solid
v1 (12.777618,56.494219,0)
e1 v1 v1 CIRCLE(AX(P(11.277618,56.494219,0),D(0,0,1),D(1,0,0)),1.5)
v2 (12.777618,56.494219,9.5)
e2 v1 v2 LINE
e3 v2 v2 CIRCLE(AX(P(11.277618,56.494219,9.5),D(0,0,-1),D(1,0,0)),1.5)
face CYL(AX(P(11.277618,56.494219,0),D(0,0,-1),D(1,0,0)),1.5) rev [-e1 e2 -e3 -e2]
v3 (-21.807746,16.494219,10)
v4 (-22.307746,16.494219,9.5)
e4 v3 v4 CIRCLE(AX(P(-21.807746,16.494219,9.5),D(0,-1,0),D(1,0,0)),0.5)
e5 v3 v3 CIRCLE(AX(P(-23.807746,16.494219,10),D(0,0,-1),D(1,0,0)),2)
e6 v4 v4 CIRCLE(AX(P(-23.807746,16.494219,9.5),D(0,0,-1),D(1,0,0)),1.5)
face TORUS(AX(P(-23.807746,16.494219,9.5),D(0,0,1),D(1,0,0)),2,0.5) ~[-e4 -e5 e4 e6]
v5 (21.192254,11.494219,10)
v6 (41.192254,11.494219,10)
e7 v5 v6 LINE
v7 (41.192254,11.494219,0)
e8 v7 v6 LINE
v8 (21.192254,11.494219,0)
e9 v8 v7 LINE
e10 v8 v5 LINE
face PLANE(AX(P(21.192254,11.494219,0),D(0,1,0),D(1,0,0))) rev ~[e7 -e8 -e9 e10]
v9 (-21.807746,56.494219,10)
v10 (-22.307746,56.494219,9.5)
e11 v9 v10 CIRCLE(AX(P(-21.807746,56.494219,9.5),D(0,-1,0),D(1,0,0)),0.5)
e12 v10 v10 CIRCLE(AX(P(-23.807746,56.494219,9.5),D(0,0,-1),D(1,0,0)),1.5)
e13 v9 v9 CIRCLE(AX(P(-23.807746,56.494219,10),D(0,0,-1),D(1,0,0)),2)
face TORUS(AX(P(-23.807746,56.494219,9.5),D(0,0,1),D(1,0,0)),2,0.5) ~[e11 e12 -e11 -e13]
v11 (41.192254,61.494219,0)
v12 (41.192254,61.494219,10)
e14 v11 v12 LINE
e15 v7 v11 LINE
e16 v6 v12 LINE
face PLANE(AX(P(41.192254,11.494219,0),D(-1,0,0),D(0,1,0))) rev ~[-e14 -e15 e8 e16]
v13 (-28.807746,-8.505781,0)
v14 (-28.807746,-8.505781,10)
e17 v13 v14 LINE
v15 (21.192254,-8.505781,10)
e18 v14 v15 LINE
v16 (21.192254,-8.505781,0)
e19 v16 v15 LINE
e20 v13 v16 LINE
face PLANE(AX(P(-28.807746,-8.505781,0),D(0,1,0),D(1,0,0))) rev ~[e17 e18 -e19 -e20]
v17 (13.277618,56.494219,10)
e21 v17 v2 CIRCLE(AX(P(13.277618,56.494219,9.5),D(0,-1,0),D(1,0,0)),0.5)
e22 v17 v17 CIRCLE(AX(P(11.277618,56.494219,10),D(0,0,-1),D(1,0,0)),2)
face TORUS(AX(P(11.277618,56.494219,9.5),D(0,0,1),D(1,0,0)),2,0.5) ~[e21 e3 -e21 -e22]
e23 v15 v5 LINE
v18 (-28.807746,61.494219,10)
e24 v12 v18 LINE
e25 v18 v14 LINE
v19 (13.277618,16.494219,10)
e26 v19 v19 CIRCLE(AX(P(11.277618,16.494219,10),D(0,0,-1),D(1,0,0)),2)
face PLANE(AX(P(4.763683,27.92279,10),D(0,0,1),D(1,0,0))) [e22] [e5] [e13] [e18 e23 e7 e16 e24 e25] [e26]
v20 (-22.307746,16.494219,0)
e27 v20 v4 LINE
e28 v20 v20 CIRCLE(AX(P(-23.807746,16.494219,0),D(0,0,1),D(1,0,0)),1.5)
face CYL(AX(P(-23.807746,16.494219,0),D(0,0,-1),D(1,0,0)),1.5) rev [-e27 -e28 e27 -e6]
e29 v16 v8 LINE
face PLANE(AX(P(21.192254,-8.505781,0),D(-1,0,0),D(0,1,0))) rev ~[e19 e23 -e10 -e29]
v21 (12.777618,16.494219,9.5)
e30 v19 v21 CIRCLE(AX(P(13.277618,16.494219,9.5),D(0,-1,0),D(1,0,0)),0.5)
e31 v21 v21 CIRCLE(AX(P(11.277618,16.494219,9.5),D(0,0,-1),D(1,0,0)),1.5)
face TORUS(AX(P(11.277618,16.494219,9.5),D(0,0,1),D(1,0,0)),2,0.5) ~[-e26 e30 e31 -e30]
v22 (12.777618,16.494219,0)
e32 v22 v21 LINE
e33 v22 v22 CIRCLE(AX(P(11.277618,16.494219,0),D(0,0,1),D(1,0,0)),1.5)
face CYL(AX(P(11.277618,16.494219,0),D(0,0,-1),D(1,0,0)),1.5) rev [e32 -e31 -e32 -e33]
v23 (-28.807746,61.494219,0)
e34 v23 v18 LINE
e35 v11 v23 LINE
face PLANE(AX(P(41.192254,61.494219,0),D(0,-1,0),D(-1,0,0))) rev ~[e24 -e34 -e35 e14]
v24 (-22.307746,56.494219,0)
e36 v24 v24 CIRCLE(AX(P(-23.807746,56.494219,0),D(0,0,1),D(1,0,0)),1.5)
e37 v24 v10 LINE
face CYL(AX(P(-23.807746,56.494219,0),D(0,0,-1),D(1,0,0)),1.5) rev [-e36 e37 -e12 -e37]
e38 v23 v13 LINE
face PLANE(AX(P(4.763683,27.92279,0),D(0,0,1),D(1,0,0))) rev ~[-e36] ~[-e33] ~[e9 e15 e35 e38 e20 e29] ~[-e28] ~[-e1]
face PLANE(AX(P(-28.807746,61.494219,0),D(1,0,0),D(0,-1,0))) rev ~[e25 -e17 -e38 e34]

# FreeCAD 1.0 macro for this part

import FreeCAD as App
import Part
import Sketcher


def edges_at(feature, points):
    """Names of the edges that pass closest to the given points."""
    edges = feature.Shape.Edges
    near = lambda p: min(range(len(edges)), key=lambda i: edges[i].distToShape(Part.Vertex(*p))[0])
    return sorted({f"Edge{near(p) + 1}" for p in points})


def add_polygon(sketch, points):
    """Adds a closed chain of lines whose ends are joined by coincident constraints."""
    first, n = sketch.GeometryCount, len(points)
    for a, b in zip(points, points[1:] + points[:1]):
        sketch.addGeometry(Part.LineSegment(App.Vector(*a, 0), App.Vector(*b, 0)), False)
    for i in range(n):
        sketch.addConstraint(Sketcher.Constraint("Coincident", first + i, 2, first + (i + 1) % n, 1))

doc = App.newDocument("Part")
body = doc.addObject("PartDesign::Body", "Body")

# Sketch on XY plane
sketch1 = body.newObject("Sketcher::SketchObject", "Sketch")
sketch1.AttachmentSupport = (doc.getObject("XY_Plane"), [""])
sketch1.MapMode = "FlatFace"
add_polygon(sketch1, [(41, 61), (-29, 61), (-29, -9), (21, -9), (21, 11), (41, 11)])  # lines 0-5
sketch1.addConstraint([
    Sketcher.Constraint("Horizontal", 0),
    Sketcher.Constraint("Vertical", 1),
    Sketcher.Constraint("Horizontal", 2),
    Sketcher.Constraint("Vertical", 3),
    Sketcher.Constraint("Horizontal", 4),
    Sketcher.Constraint("Vertical", 5),
    Sketcher.Constraint("Equal", 0, 1),
    Sketcher.Constraint("Equal", 4, 3),
    Sketcher.Constraint("DistanceX", 0, 2, 0, 1, 70.0),
    Sketcher.Constraint("DistanceX", 2, 1, 2, 2, 50.0),
    Sketcher.Constraint("DistanceY", -1, 1, 0, 2, 61.494219),
    Sketcher.Constraint("DistanceX", 0, 2, -1, 1, 28.807746),
])
pad1 = body.newObject("PartDesign::Pad", "Pad")
pad1.Profile = sketch1
pad1.Length = 10

# Sketch on XY plane
sketch2 = body.newObject("Sketcher::SketchObject", "Sketch001")
sketch2.AttachmentSupport = (doc.getObject("XY_Plane"), [""])
sketch2.MapMode = "FlatFace"
sketch2.addGeometry([
    Part.Circle(App.Vector(-23.8, 56.5, 0), App.Vector(0, 0, 1), 1.5),
    Part.Circle(App.Vector(11.3, 56.5, 0), App.Vector(0, 0, 1), 1.5),
    Part.Circle(App.Vector(11.3, 16.5, 0), App.Vector(0, 0, 1), 1.5),
    Part.Circle(App.Vector(-23.8, 16.5, 0), App.Vector(0, 0, 1), 1.5),
], False)
sketch2.addConstraint([
    Sketcher.Constraint("Equal", 0, 1),
    Sketcher.Constraint("Equal", 1, 2),
    Sketcher.Constraint("Equal", 2, 3),
    Sketcher.Constraint("Horizontal", 0, 3, 1, 3),
    Sketcher.Constraint("Horizontal", 2, 3, 3, 3),
    Sketcher.Constraint("Vertical", 1, 3, 2, 3),
    Sketcher.Constraint("Vertical", 0, 3, 3, 3),
    Sketcher.Constraint("Diameter", 0, 3.0),
    Sketcher.Constraint("DistanceY", 2, 3, 1, 3, 40.0),
    Sketcher.Constraint("DistanceY", -1, 1, 0, 3, 56.494219),
    Sketcher.Constraint("DistanceX", 0, 3, -1, 1, 23.807746),
    Sketcher.Constraint("DistanceX", -1, 1, 1, 3, 11.277618),
])
pocket1 = body.newObject("PartDesign::Pocket", "Pocket")
pocket1.Profile = sketch2
pocket1.Type = "ThroughAll"
pocket1.Reversed = True
doc.recompute()

fillet = body.newObject("PartDesign::Fillet", "Fillet")
fillet.Base = (pocket1, edges_at(pocket1, [
    (-25.308, 16.494, 10),
    (-25.308, 56.494, 10),
    (9.778, 56.494, 10),
    (9.778, 16.494, 10),
]))
fillet.Radius = 0.5

doc.recompute()
